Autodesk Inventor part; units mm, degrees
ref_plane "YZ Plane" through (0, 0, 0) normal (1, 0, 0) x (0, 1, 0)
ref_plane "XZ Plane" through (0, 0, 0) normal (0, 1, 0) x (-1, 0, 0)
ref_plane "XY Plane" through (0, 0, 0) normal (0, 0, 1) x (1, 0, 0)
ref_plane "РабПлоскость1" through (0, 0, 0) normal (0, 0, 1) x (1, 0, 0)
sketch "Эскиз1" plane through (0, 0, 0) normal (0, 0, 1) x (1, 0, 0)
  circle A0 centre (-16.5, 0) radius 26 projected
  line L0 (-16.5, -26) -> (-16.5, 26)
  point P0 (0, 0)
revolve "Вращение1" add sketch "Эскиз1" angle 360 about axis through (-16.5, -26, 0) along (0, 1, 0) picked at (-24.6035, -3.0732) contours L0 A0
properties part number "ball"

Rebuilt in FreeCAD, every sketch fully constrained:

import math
import FreeCAD as App
import Part
import Sketcher

doc = App.newDocument("Part")
body = doc.addObject("PartDesign::Body", "Body")

sketch1 = doc.addObject("Sketcher::SketchObject", "Sketch")
body.addObject(sketch1)
sketch1.AttachmentSupport = (doc.XY_Plane, [""])
sketch1.MapMode = "FlatFace"
sketch1.addGeometry([
    Part.LineSegment(App.Vector(-16, -26, 0), App.Vector(-16, 26, 0)),
    Part.ArcOfCircle(Part.Circle(App.Vector(-16, 0, 0), App.Vector(0, 0, 1), 26), math.radians(90), math.radians(270)),
], False)
sketch1.addGeometry(Part.LineSegment(App.Vector(-16, -26, 0), App.Vector(-16, 26, 0)), True)
sketch1.addConstraint([
    Sketcher.Constraint("Coincident", 0, 1, 1, 2),
    Sketcher.Constraint("Coincident", 1, 1, 0, 2),
    Sketcher.Constraint("Vertical", 0),
    Sketcher.Constraint("Vertical", 2),
    Sketcher.Constraint("Coincident", 2, 1, 0, 1),
    Sketcher.Constraint("PointOnObject", 1, 3, -1),
    Sketcher.Constraint("Vertical", 1, 3, 0, 1),
    Sketcher.Constraint("Equal", 0, 2),
    Sketcher.Constraint("Radius", 1, 26.0),
    Sketcher.Constraint("DistanceX", 1, 3, -1, 1, 16.5),
])
revolution = doc.addObject("PartDesign::Revolution", "Revolution")
body.addObject(revolution)
revolution.Profile = sketch1
revolution.ReferenceAxis = (sketch1, ["Axis0"])
revolution.Angle = 360

doc.recompute()
